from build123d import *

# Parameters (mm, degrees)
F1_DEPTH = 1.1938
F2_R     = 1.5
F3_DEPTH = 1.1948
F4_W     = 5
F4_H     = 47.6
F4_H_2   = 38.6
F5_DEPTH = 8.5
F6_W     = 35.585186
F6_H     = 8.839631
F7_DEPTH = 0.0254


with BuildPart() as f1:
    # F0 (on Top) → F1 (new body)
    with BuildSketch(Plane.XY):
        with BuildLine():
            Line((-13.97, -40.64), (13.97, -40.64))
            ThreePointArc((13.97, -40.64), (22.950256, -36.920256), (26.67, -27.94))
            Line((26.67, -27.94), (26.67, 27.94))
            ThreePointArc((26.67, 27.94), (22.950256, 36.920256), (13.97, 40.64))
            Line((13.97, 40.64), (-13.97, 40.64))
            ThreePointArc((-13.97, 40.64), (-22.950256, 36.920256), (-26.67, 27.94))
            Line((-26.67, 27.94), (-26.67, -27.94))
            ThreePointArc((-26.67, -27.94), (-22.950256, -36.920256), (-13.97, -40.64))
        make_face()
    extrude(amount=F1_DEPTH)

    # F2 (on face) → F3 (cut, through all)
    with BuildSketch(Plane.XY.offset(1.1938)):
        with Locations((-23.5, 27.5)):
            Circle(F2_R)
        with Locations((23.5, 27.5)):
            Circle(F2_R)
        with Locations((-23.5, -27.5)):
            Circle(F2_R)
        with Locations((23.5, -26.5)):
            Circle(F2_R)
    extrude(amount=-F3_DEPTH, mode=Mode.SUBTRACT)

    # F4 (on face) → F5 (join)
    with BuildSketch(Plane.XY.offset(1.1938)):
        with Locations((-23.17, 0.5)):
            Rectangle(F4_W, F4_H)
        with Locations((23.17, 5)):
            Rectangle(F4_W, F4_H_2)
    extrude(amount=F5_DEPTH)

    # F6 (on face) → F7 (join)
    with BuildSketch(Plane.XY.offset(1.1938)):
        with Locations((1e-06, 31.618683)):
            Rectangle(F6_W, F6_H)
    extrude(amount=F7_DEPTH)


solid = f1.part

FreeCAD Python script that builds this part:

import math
import FreeCAD as App
import Part
import Sketcher

V = App.Vector
Q = App.Units.Quantity

doc = App.newDocument("Part")
body = doc.addObject("PartDesign::Body", "Body")

# Sketch on XY plane
sketch1 = body.newObject("Sketcher::SketchObject", "Sketch")
sketch1.AttachmentSupport = (doc.getObject("XY_Plane"), [""])
sketch1.MapMode = "FlatFace"
sketch1.addGeometry([
    Part.LineSegment(V(-13.97, -40.64, 0), V(13.97, -40.64, 0)),  # 0
    Part.ArcOfCircle(Part.Circle(V(13.97, -27.94, 0), V(0, 0, 1), 12.7), math.radians(-89.999998), math.radians(-0.000002)),  # 1
    Part.LineSegment(V(26.67, -27.94, 0), V(26.67, 27.94, 0)),  # 2
    Part.ArcOfCircle(Part.Circle(V(13.97, 27.94, 0), V(0, 0, 1), 12.7), math.radians(0.000002), math.radians(89.999998)),  # 3
    Part.LineSegment(V(13.97, 40.64, 0), V(-13.97, 40.64, 0)),  # 4
    Part.ArcOfCircle(Part.Circle(V(-13.97, 27.94, 0), V(0, 0, 1), 12.7), math.radians(90.000002), math.radians(179.999998)),  # 5
    Part.LineSegment(V(-26.67, 27.94, 0), V(-26.67, -27.94, 0)),  # 6
    Part.ArcOfCircle(Part.Circle(V(-13.97, -27.94, 0), V(0, 0, 1), 12.7), math.radians(-179.999998), math.radians(-90.000002)),  # 7
], False)
sketch1.addConstraint([
    Sketcher.Constraint("Tangent", 0, 2, 1, 1),
    Sketcher.Constraint("Tangent", 1, 2, 2, 1),
    Sketcher.Constraint("Tangent", 2, 2, 3, 1),
    Sketcher.Constraint("Tangent", 3, 2, 4, 1),
    Sketcher.Constraint("Tangent", 4, 2, 5, 1),
    Sketcher.Constraint("Tangent", 5, 2, 6, 1),
    Sketcher.Constraint("Tangent", 6, 2, 7, 1),
    Sketcher.Constraint("Tangent", 7, 2, 0, 1),
    Sketcher.Constraint("Horizontal", 0),
    Sketcher.Constraint("Vertical", 2),
    Sketcher.Constraint("Horizontal", 4),
    Sketcher.Constraint("Vertical", 6),
    Sketcher.Constraint("Equal", 1, 3),
    Sketcher.Constraint("Equal", 3, 5),
    Sketcher.Constraint("Equal", 5, 7),
    Sketcher.Constraint("Symmetric", 1, 3, 5, 3, -1, 1),
    Sketcher.Constraint("Radius", 1, Q("12.7 mm")),
    Sketcher.Constraint("DistanceX", 0, 1, 0, 2, Q("27.94 mm")),
    Sketcher.Constraint("DistanceY", 2, 1, 2, 2, Q("55.88 mm")),
])
pad1 = body.newObject("PartDesign::Pad", "Pad")
pad1.Profile = sketch1
pad1.Length = 1.1938

# Sketch on XY plane
sketch2 = body.newObject("Sketcher::SketchObject", "Sketch001")
sketch2.AttachmentSupport = (doc.getObject("XY_Plane"), [""])
sketch2.MapMode = "FlatFace"
sketch2.AttachmentOffset = App.Placement(V(0, 0, 1.1938), App.Rotation())
sketch2.addGeometry([
    Part.Circle(V(-23.5, 27.5, 0), V(0, 0, 1), 1.5),
    Part.Circle(V(23.5, 27.5, 0), V(0, 0, 1), 1.5),
    Part.Circle(V(-23.5, -27.5, 0), V(0, 0, 1), 1.5),
    Part.Circle(V(23.5, -26.5, 0), V(0, 0, 1), 1.5),
], False)
sketch2.addConstraint([
    Sketcher.Constraint("Equal", 0, 1),
    Sketcher.Constraint("Equal", 1, 2),
    Sketcher.Constraint("Equal", 2, 3),
    Sketcher.Constraint("Symmetric", 1, 3, 2, 3, -1, 1),
    Sketcher.Constraint("Symmetric", 0, 3, 1, 3, -2),
    Sketcher.Constraint("Vertical", 1, 3, 3, 3),
    Sketcher.Constraint("Diameter", 0, Q("3 mm")),
    Sketcher.Constraint("DistanceX", 0, 3, 1, 3, Q("47 mm")),
    Sketcher.Constraint("DistanceY", 2, 3, 0, 3, Q("55 mm")),
    Sketcher.Constraint("DistanceY", 2, 3, 3, 3, Q("1 mm")),
])
pocket1 = body.newObject("PartDesign::Pocket", "Pocket")
pocket1.Profile = sketch2
pocket1.Type = "ThroughAll"

# Sketch on XY plane
sketch3 = body.newObject("Sketcher::SketchObject", "Sketch002")
sketch3.AttachmentSupport = (doc.getObject("XY_Plane"), [""])
sketch3.MapMode = "FlatFace"
sketch3.AttachmentOffset = App.Placement(V(0, 0, 1.1938), App.Rotation())
sketch3.addGeometry([
    Part.LineSegment(V(-25.67, 24.3, 0), V(-25.67, -23.3, 0)),  # 0
    Part.LineSegment(V(-25.67, -23.3, 0), V(-20.67, -23.3, 0)),  # 1
    Part.LineSegment(V(-20.67, -23.3, 0), V(-20.67, 24.3, 0)),  # 2
    Part.LineSegment(V(-20.67, 24.3, 0), V(-25.67, 24.3, 0)),  # 3
    Part.LineSegment(V(20.67, 24.3, 0), V(20.67, -14.3, 0)),  # 4
    Part.LineSegment(V(20.67, -14.3, 0), V(25.67, -14.3, 0)),  # 5
    Part.LineSegment(V(25.67, -14.3, 0), V(25.67, 24.3, 0)),  # 6
    Part.LineSegment(V(25.67, 24.3, 0), V(20.67, 24.3, 0)),  # 7
], False)
sketch3.addConstraint([
    Sketcher.Constraint("Coincident", 0, 2, 1, 1),
    Sketcher.Constraint("Coincident", 1, 2, 2, 1),
    Sketcher.Constraint("Coincident", 2, 2, 3, 1),
    Sketcher.Constraint("Coincident", 3, 2, 0, 1),
    Sketcher.Constraint("Coincident", 4, 2, 5, 1),
    Sketcher.Constraint("Coincident", 5, 2, 6, 1),
    Sketcher.Constraint("Coincident", 6, 2, 7, 1),
    Sketcher.Constraint("Coincident", 7, 2, 4, 1),
    Sketcher.Constraint("Vertical", 0),
    Sketcher.Constraint("Horizontal", 1),
    Sketcher.Constraint("Vertical", 2),
    Sketcher.Constraint("Horizontal", 3),
    Sketcher.Constraint("Vertical", 4),
    Sketcher.Constraint("Horizontal", 5),
    Sketcher.Constraint("Vertical", 6),
    Sketcher.Constraint("Horizontal", 7),
    Sketcher.Constraint("Symmetric", 3, 2, 6, 2, -2),
    Sketcher.Constraint("Equal", 3, 5),
    Sketcher.Constraint("DistanceX", 1, 1, 1, 2, Q("5 mm")),
    Sketcher.Constraint("DistanceY", 0, 2, 0, 1, Q("47.6 mm")),
    Sketcher.Constraint("DistanceY", 4, 2, 4, 1, Q("38.6 mm")),
    Sketcher.Constraint("DistanceY", 0, 2, -1, 1, Q("23.3 mm")),
    Sketcher.Constraint("DistanceX", 0, 2, -1, 1, Q("25.67 mm")),
])
pad2 = body.newObject("PartDesign::Pad", "Pad001")
pad2.Profile = sketch3
pad2.Length = 8.5

# Sketch on XY plane
sketch4 = body.newObject("Sketcher::SketchObject", "Sketch003")
sketch4.AttachmentSupport = (doc.getObject("XY_Plane"), [""])
sketch4.MapMode = "FlatFace"
sketch4.AttachmentOffset = App.Placement(V(0, 0, 1.1938), App.Rotation())
sketch4.addGeometry([
    Part.LineSegment(V(-17.792592, 36.038499, 0), V(-17.792592, 27.198867, 0)),
    Part.LineSegment(V(-17.792592, 27.198867, 0), V(17.792594, 27.198867, 0)),
    Part.LineSegment(V(17.792594, 27.198867, 0), V(17.792594, 36.038499, 0)),
    Part.LineSegment(V(17.792594, 36.038499, 0), V(-17.792592, 36.038499, 0)),
], False)
sketch4.addConstraint([
    Sketcher.Constraint("Coincident", 0, 2, 1, 1),
    Sketcher.Constraint("Coincident", 1, 2, 2, 1),
    Sketcher.Constraint("Coincident", 2, 2, 3, 1),
    Sketcher.Constraint("Coincident", 3, 2, 0, 1),
    Sketcher.Constraint("Vertical", 0),
    Sketcher.Constraint("Horizontal", 1),
    Sketcher.Constraint("Vertical", 2),
    Sketcher.Constraint("Horizontal", 3),
    Sketcher.Constraint("DistanceY", 0, 2, 0, 1, Q("8.839631 mm")),
    Sketcher.Constraint("DistanceY", -1, 1, 2, 2, Q("36.038499 mm")),
    Sketcher.Constraint("DistanceX", 1, 1, 1, 2, Q("35.585186 mm")),
    Sketcher.Constraint("DistanceX", 0, 2, -1, 1, Q("17.792592 mm")),
])
pad3 = body.newObject("PartDesign::Pad", "Pad002")
pad3.Profile = sketch4
pad3.Length = 0.0254

doc.recompute()
